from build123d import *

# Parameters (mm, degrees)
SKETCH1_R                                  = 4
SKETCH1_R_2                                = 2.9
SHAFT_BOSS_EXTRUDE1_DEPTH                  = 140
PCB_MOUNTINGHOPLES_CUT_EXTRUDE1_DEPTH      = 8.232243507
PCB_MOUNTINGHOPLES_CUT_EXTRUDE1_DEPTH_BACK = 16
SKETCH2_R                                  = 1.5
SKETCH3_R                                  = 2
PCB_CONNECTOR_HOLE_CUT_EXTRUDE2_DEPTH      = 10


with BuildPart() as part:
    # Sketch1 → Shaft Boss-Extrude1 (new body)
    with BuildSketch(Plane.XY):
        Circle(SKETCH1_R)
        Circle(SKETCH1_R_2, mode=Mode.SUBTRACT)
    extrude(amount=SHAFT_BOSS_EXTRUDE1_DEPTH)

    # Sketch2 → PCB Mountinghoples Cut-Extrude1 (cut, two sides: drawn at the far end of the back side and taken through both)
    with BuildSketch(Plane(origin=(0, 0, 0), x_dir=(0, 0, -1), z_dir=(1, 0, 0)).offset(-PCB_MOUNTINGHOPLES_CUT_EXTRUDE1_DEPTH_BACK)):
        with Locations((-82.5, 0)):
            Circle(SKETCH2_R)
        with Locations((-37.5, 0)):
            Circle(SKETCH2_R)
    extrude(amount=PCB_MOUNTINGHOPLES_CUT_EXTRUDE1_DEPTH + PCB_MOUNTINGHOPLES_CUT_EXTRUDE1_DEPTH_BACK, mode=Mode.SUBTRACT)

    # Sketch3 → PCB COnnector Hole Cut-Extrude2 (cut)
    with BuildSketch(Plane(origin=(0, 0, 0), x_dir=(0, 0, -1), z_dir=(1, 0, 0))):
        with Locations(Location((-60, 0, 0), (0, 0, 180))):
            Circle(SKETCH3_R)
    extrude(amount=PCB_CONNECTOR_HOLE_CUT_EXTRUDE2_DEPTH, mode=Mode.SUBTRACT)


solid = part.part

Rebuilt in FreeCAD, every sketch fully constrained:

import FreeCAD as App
import Part
import Sketcher

doc = App.newDocument("Part")
body = doc.addObject("PartDesign::Body", "Body")

# Sketch on XY plane
sketch1 = body.newObject("Sketcher::SketchObject", "Sketch")
sketch1.AttachmentSupport = (doc.getObject("XY_Plane"), [""])
sketch1.MapMode = "FlatFace"
sketch1.addGeometry(Part.Circle(App.Vector(0, 0, 0), App.Vector(0, 0, 1), 4), False)
sketch1.addGeometry(Part.Circle(App.Vector(0, 0, 0), App.Vector(0, 0, 1), 2.9), False)
sketch1.addConstraint(Sketcher.Constraint("Coincident", 0, 3, -1, 1))
sketch1.addConstraint(Sketcher.Constraint("Coincident", 1, 3, -1, 1))
sketch1.addConstraint(Sketcher.Constraint("Diameter", 0, 8.0))
sketch1.addConstraint(Sketcher.Constraint("Diameter", 1, 5.8))
pad1 = body.newObject("PartDesign::Pad", "Pad")
pad1.Profile = sketch1
pad1.Length = 140

# Sketch on YZ plane
sketch2 = body.newObject("Sketcher::SketchObject", "Sketch001")
sketch2.AttachmentSupport = (doc.getObject("YZ_Plane"), [""])
sketch2.MapMode = "FlatFace"
sketch2.addGeometry(Part.Circle(App.Vector(0, 82.5, 0), App.Vector(0, 0, 1), 1.5), False)
sketch2.addGeometry(Part.Circle(App.Vector(0, 37.5, 0), App.Vector(0, 0, 1), 1.5), False)
sketch2.addConstraint(Sketcher.Constraint("Equal", 0, 1))
sketch2.addConstraint(Sketcher.Constraint("PointOnObject", 0, 3, -2))
sketch2.addConstraint(Sketcher.Constraint("PointOnObject", 1, 3, -2))
sketch2.addConstraint(Sketcher.Constraint("Diameter", 0, 3.0))
sketch2.addConstraint(Sketcher.Constraint("DistanceY", 1, 3, 0, 3, 45.0))
sketch2.addConstraint(Sketcher.Constraint("DistanceY", -1, 1, 0, 3, 82.5))
pocket1 = body.newObject("PartDesign::Pocket", "Pocket")
pocket1.Profile = sketch2
pocket1.Type = "ThroughAll"
pocket1.Midplane = True

# Sketch on YZ plane
sketch3 = body.newObject("Sketcher::SketchObject", "Sketch002")
sketch3.AttachmentSupport = (doc.getObject("YZ_Plane"), [""])
sketch3.MapMode = "FlatFace"
sketch3.addGeometry(Part.Circle(App.Vector(0, 60, 0), App.Vector(0, 0, 1), 2), False)
sketch3.addConstraint(Sketcher.Constraint("PointOnObject", 0, 3, -2))
sketch3.addConstraint(Sketcher.Constraint("Diameter", 0, 4.0))
sketch3.addConstraint(Sketcher.Constraint("DistanceY", -1, 1, 0, 3, 60.0))
pocket2 = body.newObject("PartDesign::Pocket", "Pocket001")
pocket2.Profile = sketch3
pocket2.Length = 10
pocket2.Reversed = True

doc.recompute()
